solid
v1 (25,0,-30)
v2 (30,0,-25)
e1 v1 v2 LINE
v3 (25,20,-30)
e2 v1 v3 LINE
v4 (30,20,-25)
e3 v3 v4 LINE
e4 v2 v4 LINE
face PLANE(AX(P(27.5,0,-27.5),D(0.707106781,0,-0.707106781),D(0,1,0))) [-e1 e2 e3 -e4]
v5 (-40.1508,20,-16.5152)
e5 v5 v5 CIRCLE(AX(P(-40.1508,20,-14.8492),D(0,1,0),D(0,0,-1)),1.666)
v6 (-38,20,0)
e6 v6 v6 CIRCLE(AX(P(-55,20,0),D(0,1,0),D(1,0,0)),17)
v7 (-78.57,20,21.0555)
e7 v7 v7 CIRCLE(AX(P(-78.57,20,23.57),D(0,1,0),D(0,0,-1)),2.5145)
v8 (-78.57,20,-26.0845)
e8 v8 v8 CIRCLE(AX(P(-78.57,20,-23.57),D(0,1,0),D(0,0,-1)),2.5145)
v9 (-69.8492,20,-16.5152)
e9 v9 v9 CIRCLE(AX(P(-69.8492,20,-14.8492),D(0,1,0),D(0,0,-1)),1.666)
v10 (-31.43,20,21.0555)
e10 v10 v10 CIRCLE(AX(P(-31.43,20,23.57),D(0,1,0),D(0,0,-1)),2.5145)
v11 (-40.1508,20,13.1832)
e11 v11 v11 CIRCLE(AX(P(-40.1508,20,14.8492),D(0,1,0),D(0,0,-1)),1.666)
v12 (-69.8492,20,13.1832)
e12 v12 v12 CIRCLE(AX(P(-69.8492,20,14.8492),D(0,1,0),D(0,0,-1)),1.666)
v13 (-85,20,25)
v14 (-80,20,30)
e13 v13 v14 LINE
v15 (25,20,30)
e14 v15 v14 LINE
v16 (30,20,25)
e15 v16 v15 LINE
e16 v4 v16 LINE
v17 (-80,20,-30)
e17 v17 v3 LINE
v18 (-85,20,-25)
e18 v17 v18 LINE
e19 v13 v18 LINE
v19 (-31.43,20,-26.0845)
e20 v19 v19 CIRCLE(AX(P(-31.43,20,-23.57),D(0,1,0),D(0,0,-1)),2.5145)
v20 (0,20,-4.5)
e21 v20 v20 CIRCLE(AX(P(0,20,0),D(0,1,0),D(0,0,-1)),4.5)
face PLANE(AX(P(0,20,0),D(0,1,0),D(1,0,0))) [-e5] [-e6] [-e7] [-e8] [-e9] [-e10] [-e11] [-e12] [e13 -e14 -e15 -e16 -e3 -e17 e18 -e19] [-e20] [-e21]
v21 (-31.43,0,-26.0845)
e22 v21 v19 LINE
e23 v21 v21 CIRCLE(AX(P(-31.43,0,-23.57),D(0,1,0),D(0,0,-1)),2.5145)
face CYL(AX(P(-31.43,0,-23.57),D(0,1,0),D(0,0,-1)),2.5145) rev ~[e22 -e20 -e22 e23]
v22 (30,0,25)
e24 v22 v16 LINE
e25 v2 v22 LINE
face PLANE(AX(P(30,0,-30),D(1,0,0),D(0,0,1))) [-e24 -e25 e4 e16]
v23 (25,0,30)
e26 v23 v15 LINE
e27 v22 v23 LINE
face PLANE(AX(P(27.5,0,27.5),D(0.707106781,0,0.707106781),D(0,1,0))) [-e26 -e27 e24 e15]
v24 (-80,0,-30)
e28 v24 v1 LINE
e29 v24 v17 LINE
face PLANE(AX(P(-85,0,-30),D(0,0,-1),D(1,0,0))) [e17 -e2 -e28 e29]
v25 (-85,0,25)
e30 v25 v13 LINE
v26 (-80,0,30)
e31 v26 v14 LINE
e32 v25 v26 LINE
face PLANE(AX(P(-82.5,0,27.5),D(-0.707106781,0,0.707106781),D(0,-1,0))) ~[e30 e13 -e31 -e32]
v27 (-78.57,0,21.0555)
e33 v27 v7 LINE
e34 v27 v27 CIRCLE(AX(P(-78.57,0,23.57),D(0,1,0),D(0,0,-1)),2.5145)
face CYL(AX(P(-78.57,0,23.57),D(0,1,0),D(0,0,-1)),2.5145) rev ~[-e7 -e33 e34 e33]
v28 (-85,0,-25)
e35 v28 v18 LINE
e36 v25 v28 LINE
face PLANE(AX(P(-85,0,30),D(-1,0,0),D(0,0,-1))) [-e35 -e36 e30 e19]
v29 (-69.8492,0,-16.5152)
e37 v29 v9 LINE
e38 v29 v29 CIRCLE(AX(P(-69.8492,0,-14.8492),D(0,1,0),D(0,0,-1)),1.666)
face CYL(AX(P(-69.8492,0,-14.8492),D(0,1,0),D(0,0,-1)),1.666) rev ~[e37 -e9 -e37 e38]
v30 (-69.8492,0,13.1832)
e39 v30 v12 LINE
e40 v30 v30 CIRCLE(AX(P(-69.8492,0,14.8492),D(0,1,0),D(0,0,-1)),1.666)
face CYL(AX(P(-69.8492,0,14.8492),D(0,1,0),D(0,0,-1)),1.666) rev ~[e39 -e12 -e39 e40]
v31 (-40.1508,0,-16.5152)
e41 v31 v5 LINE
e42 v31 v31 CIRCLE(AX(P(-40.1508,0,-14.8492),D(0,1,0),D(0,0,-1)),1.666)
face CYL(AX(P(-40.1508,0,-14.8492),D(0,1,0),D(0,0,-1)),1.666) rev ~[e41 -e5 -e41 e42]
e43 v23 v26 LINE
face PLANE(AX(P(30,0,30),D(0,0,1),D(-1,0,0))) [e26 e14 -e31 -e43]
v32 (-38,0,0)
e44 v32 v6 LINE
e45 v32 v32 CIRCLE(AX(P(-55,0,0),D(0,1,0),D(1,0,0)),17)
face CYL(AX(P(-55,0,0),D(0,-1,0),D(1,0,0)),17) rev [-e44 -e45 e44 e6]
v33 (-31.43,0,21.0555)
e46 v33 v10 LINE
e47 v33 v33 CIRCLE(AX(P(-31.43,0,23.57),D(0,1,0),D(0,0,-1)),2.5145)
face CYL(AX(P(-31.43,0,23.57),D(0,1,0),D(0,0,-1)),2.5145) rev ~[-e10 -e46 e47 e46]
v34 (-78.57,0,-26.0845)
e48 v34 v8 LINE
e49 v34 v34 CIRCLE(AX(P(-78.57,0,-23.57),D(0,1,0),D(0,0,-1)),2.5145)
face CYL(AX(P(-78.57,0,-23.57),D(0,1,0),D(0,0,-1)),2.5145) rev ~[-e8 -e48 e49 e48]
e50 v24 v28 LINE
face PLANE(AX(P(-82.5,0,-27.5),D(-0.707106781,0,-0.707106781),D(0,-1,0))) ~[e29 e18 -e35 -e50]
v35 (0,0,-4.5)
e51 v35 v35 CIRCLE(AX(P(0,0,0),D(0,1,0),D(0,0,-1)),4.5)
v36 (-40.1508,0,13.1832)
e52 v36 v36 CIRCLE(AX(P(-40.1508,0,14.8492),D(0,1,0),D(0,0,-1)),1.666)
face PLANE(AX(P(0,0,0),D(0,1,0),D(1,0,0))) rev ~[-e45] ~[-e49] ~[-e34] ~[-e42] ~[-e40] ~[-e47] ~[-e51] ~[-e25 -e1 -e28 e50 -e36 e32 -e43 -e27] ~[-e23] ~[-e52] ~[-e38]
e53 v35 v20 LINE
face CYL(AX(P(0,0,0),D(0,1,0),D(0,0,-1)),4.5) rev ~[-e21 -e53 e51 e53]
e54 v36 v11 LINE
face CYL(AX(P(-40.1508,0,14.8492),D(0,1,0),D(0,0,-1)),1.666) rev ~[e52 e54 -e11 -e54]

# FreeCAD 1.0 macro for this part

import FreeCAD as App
import Part
import Sketcher


def edges_at(feature, points):
    """Names of the edges that pass closest to the given points."""
    edges = feature.Shape.Edges
    near = lambda p: min(range(len(edges)), key=lambda i: edges[i].distToShape(Part.Vertex(*p))[0])
    return sorted({f"Edge{near(p) + 1}" for p in points})

doc = App.newDocument("Part")
body = doc.addObject("PartDesign::Body", "Body")

sketch1 = doc.addObject("Sketcher::SketchObject", "Sketch")
body.addObject(sketch1)
sketch1.AttachmentSupport = (doc.XZ_Plane, [""])
sketch1.MapMode = "FlatFace"
sketch1.addGeometry(Part.LineSegment(App.Vector(30, -30, 0), App.Vector(-85, -30, 0)), False)
sketch1.addGeometry(Part.LineSegment(App.Vector(-85, -30, 0), App.Vector(-85, 30, 0)), False)
sketch1.addGeometry(Part.LineSegment(App.Vector(-85, 30, 0), App.Vector(30, 30, 0)), False)
sketch1.addGeometry(Part.LineSegment(App.Vector(30, 30, 0), App.Vector(30, -30, 0)), False)
sketch1.addGeometry(Part.Circle(App.Vector(-55, 0, 0), App.Vector(0, 0, 1), 17), False)
sketch1.addConstraint(Sketcher.Constraint("Coincident", 0, 2, 1, 1))
sketch1.addConstraint(Sketcher.Constraint("Coincident", 1, 2, 2, 1))
sketch1.addConstraint(Sketcher.Constraint("Coincident", 2, 2, 3, 1))
sketch1.addConstraint(Sketcher.Constraint("Coincident", 3, 2, 0, 1))
sketch1.addConstraint(Sketcher.Constraint("Horizontal", 0))
sketch1.addConstraint(Sketcher.Constraint("Vertical", 1))
sketch1.addConstraint(Sketcher.Constraint("Horizontal", 2))
sketch1.addConstraint(Sketcher.Constraint("Vertical", 3))
sketch1.addConstraint(Sketcher.Constraint("PointOnObject", 4, 3, -1))
sketch1.addConstraint(Sketcher.Constraint("Diameter", 4, 34.0))
sketch1.addConstraint(Sketcher.Constraint("DistanceY", 1, 1, 1, 2, 60.0))
sketch1.addConstraint(Sketcher.Constraint("DistanceX", 4, 3, -1, 1, 55.0))
sketch1.addConstraint(Sketcher.Constraint("DistanceY", 0, 2, -1, 1, 30.0))
sketch1.addConstraint(Sketcher.Constraint("DistanceX", -1, 1, 2, 2, 30.0))
sketch1.addConstraint(Sketcher.Constraint("DistanceX", 0, 2, 4, 3, 30.0))
pad1 = doc.addObject("PartDesign::Pad", "Pad")
body.addObject(pad1)
pad1.Profile = sketch1
pad1.Length = 20
pad1.Reversed = True

sketch2 = doc.addObject("Sketcher::SketchObject", "Sketch001")
body.addObject(sketch2)
sketch2.AttachmentSupport = (doc.XZ_Plane, [""])
sketch2.MapMode = "FlatFace"
sketch2.addGeometry(Part.Circle(App.Vector(0, 0, 0), App.Vector(0, 0, 1), 4.5), False)
sketch2.addConstraint(Sketcher.Constraint("Coincident", 0, 3, -1, 1))
sketch2.addConstraint(Sketcher.Constraint("Diameter", 0, 9.0))
doc.recompute()
hole = doc.addObject("PartDesign::Hole", "Hole")
body.addObject(hole)
hole.Profile = sketch2
hole.ThreadType = "None"
hole.Diameter = 9
hole.DepthType = "ThroughAll"

sketch3 = doc.addObject("Sketcher::SketchObject", "Sketch002")
body.addObject(sketch3)
sketch3.AttachmentSupport = (doc.XZ_Plane, [""])
sketch3.MapMode = "FlatFace"
sketch3.addGeometry(Part.Circle(App.Vector(-31.4, 23.6, 0), App.Vector(0, 0, 1), 2.5), False)
sketch3.addGeometry(Part.Circle(App.Vector(-31.4, -23.6, 0), App.Vector(0, 0, 1), 2.5), False)
sketch3.addGeometry(Part.Circle(App.Vector(-78.6, -23.6, 0), App.Vector(0, 0, 1), 2.5), False)
sketch3.addGeometry(Part.Circle(App.Vector(-78.6, 23.6, 0), App.Vector(0, 0, 1), 2.5), False)
sketch3.addConstraint(Sketcher.Constraint("Equal", 0, 1))
sketch3.addConstraint(Sketcher.Constraint("Equal", 1, 2))
sketch3.addConstraint(Sketcher.Constraint("Equal", 2, 3))
sketch3.addConstraint(Sketcher.Constraint("Symmetric", 0, 3, 1, 3, -1))
sketch3.addConstraint(Sketcher.Constraint("Symmetric", 2, 3, 3, 3, -1))
sketch3.addConstraint(Sketcher.Constraint("Horizontal", 1, 3, 2, 3))
sketch3.addConstraint(Sketcher.Constraint("Diameter", 0, 5.029))
sketch3.addConstraint(Sketcher.Constraint("DistanceX", 0, 3, -1, 1, 31.43))
sketch3.addConstraint(Sketcher.Constraint("DistanceY", -1, 1, 0, 3, 23.57))
sketch3.addConstraint(Sketcher.Constraint("DistanceX", 2, 3, -1, 1, 78.57))
doc.recompute()
hole2 = doc.addObject("PartDesign::Hole", "Hole001")
body.addObject(hole2)
hole2.Profile = sketch3
hole2.ThreadType = "None"
hole2.Diameter = 5.029
hole2.DepthType = "ThroughAll"

sketch4 = doc.addObject("Sketcher::SketchObject", "Sketch003")
body.addObject(sketch4)
sketch4.AttachmentSupport = (doc.XZ_Plane, [""])
sketch4.MapMode = "FlatFace"
sketch4.addGeometry(Part.Circle(App.Vector(-69.8, 14.8, 0), App.Vector(0, 0, 1), 1.7), False)
sketch4.addGeometry(Part.Circle(App.Vector(-69.8, -14.8, 0), App.Vector(0, 0, 1), 1.7), False)
sketch4.addGeometry(Part.Circle(App.Vector(-40.2, -14.8, 0), App.Vector(0, 0, 1), 1.7), False)
sketch4.addGeometry(Part.Circle(App.Vector(-40.2, 14.8, 0), App.Vector(0, 0, 1), 1.7), False)
sketch4.addConstraint(Sketcher.Constraint("Equal", 0, 1))
sketch4.addConstraint(Sketcher.Constraint("Equal", 1, 2))
sketch4.addConstraint(Sketcher.Constraint("Equal", 2, 3))
sketch4.addConstraint(Sketcher.Constraint("Symmetric", 0, 3, 1, 3, -1))
sketch4.addConstraint(Sketcher.Constraint("Symmetric", 2, 3, 3, 3, -1))
sketch4.addConstraint(Sketcher.Constraint("Horizontal", 1, 3, 2, 3))
sketch4.addConstraint(Sketcher.Constraint("Diameter", 0, 3.332))
sketch4.addConstraint(Sketcher.Constraint("DistanceX", 0, 3, -1, 1, 69.8492))
sketch4.addConstraint(Sketcher.Constraint("DistanceY", -1, 1, 0, 3, 14.8492))
sketch4.addConstraint(Sketcher.Constraint("DistanceX", 2, 3, -1, 1, 40.1508))
doc.recompute()
hole3 = doc.addObject("PartDesign::Hole", "Hole002")
body.addObject(hole3)
hole3.Profile = sketch4
hole3.ThreadType = "None"
hole3.Diameter = 3.332
hole3.DepthType = "ThroughAll"
doc.recompute()

chamfer = doc.addObject("PartDesign::Chamfer", "Chamfer")
body.addObject(chamfer)
chamfer.Base = (hole3, edges_at(hole3, [
    (-85, 10, 30),
    (-85, 10, -30),
    (30, 10, 30),
    (30, 10, -30),
]))
chamfer.Size = 5

doc.recompute()
